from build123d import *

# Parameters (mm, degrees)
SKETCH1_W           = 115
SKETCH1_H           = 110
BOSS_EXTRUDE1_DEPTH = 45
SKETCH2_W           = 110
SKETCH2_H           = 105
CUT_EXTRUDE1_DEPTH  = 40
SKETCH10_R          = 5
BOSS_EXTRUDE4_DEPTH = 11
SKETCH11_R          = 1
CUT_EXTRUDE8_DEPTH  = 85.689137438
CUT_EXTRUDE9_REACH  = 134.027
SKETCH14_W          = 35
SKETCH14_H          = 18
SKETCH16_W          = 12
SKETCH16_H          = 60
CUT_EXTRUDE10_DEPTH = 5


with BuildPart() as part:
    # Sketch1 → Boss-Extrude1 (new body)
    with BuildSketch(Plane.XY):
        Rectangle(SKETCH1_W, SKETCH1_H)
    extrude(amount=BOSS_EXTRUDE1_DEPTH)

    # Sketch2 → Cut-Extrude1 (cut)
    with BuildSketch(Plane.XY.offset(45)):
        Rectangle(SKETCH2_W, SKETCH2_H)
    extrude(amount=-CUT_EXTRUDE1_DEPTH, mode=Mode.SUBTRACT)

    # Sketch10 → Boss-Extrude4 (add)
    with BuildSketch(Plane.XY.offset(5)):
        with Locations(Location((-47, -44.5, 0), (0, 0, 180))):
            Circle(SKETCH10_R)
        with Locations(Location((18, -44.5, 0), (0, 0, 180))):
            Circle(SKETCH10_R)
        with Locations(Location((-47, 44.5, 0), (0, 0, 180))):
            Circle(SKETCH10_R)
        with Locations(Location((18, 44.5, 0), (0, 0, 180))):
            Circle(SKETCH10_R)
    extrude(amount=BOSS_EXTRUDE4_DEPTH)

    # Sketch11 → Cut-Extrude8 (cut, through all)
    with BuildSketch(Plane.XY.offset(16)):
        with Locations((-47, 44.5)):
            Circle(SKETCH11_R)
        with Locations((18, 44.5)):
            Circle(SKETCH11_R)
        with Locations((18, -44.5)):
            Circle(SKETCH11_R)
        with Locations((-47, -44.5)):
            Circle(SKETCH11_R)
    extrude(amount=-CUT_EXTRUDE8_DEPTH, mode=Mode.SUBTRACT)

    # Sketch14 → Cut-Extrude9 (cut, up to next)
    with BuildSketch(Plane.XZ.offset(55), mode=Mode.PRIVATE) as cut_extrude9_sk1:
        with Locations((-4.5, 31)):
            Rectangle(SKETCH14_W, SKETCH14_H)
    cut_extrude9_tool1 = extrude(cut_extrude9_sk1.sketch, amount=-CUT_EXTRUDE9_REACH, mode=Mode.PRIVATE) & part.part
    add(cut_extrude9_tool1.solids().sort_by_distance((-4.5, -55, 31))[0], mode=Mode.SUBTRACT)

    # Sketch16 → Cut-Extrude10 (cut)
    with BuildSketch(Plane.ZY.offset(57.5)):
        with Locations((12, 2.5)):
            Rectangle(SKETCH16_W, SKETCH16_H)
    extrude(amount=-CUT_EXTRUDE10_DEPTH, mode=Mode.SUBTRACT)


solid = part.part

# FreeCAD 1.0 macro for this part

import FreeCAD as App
import Part
import Sketcher

doc = App.newDocument("Part")
params = doc.addObject("Spreadsheet::Sheet", "Params")
for row, (alias, value) in enumerate([
    ("sketch1_width", "115 mm"),
    ("sketch1_height", "110 mm"),
    ("pad1_length", "45 mm"),
    ("sketch2_width", "110 mm"),
    ("sketch2_height", "105 mm"),
    ("pocket1_length", "40 mm"),
    ("sketch3_diameter", "10 mm"),
    ("pad2_length", "11 mm"),
    ("sketch4_diameter", "2 mm"),
    ("sketch5_width", "35 mm"),
    ("sketch5_height", "18 mm"),
    ("sketch6_width", "60 mm"),
    ("sketch6_height", "12 mm"),
    ("pocket4_length", "5 mm"),
], start=1):
    params.set(f"A{row}", alias)
    params.set(f"B{row}", "=" + value)
    params.setAlias(f"B{row}", alias)

body = doc.addObject("PartDesign::Body", "Body")

sketch1 = body.newObject("Sketcher::SketchObject", "Sketch")
sketch1.AttachmentSupport = (doc.getObject("XY_Plane"), [""])
sketch1.MapMode = "FlatFace"
sketch1.addGeometry([
    Part.LineSegment(App.Vector(-57.5, 55, 0), App.Vector(-57.5, -55, 0)),
    Part.LineSegment(App.Vector(-57.5, -55, 0), App.Vector(57.5, -55, 0)),
    Part.LineSegment(App.Vector(57.5, -55, 0), App.Vector(57.5, 55, 0)),
    Part.LineSegment(App.Vector(57.5, 55, 0), App.Vector(-57.5, 55, 0)),
], False)
sketch1.addConstraint([
    Sketcher.Constraint("Coincident", 0, 2, 1, 1),
    Sketcher.Constraint("Coincident", 1, 2, 2, 1),
    Sketcher.Constraint("Coincident", 2, 2, 3, 1),
    Sketcher.Constraint("Coincident", 3, 2, 0, 1),
    Sketcher.Constraint("Vertical", 0),
    Sketcher.Constraint("Horizontal", 1),
    Sketcher.Constraint("Vertical", 2),
    Sketcher.Constraint("Horizontal", 3),
    Sketcher.Constraint("Symmetric", 0, 2, 2, 2, -1, 1),
    Sketcher.Constraint("DistanceX", 1, 1, 1, 2, 115.0),
    Sketcher.Constraint("DistanceY", 0, 2, 0, 1, 110.0),
])
sketch1.setExpression("Constraints[9]", "Params.sketch1_width")
sketch1.setExpression("Constraints[10]", "Params.sketch1_height")
pad1 = body.newObject("PartDesign::Pad", "Pad")
pad1.Profile = sketch1
pad1.setExpression("Length", "Params.pad1_length")

sketch2 = body.newObject("Sketcher::SketchObject", "Sketch001")
sketch2.AttachmentSupport = (doc.getObject("XY_Plane"), [""])
sketch2.MapMode = "FlatFace"
sketch2.AttachmentOffset = App.Placement(App.Vector(0, 0, 45), App.Rotation())
sketch2.addGeometry([
    Part.LineSegment(App.Vector(-55, 52.5, 0), App.Vector(-55, -52.5, 0)),
    Part.LineSegment(App.Vector(-55, -52.5, 0), App.Vector(55, -52.5, 0)),
    Part.LineSegment(App.Vector(55, -52.5, 0), App.Vector(55, 52.5, 0)),
    Part.LineSegment(App.Vector(55, 52.5, 0), App.Vector(-55, 52.5, 0)),
], False)
sketch2.addConstraint([
    Sketcher.Constraint("Coincident", 0, 2, 1, 1),
    Sketcher.Constraint("Coincident", 1, 2, 2, 1),
    Sketcher.Constraint("Coincident", 2, 2, 3, 1),
    Sketcher.Constraint("Coincident", 3, 2, 0, 1),
    Sketcher.Constraint("Vertical", 0),
    Sketcher.Constraint("Horizontal", 1),
    Sketcher.Constraint("Vertical", 2),
    Sketcher.Constraint("Horizontal", 3),
    Sketcher.Constraint("Symmetric", 0, 2, 2, 2, -1, 1),
    Sketcher.Constraint("DistanceX", 1, 1, 1, 2, 110.0),
    Sketcher.Constraint("DistanceY", 0, 2, 0, 1, 105.0),
])
sketch2.setExpression("Constraints[9]", "Params.sketch2_width")
sketch2.setExpression("Constraints[10]", "Params.sketch2_height")
pocket1 = body.newObject("PartDesign::Pocket", "Pocket")
pocket1.Profile = sketch2
pocket1.setExpression("Length", "Params.pocket1_length")

sketch3 = body.newObject("Sketcher::SketchObject", "Sketch002")
sketch3.AttachmentSupport = (doc.getObject("XY_Plane"), [""])
sketch3.MapMode = "FlatFace"
sketch3.AttachmentOffset = App.Placement(App.Vector(0, 0, 5), App.Rotation())
sketch3.addGeometry([
    Part.Circle(App.Vector(-47, -44.5, 0), App.Vector(0, 0, 1), 5),
    Part.Circle(App.Vector(18, -44.5, 0), App.Vector(0, 0, 1), 5),
    Part.Circle(App.Vector(-47, 44.5, 0), App.Vector(0, 0, 1), 5),
    Part.Circle(App.Vector(18, 44.5, 0), App.Vector(0, 0, 1), 5),
], False)
sketch3.addConstraint([
    Sketcher.Constraint("Equal", 0, 1),
    Sketcher.Constraint("Equal", 1, 2),
    Sketcher.Constraint("Equal", 2, 3),
    Sketcher.Constraint("Symmetric", 0, 3, 2, 3, -1),
    Sketcher.Constraint("Symmetric", 1, 3, 3, 3, -1),
    Sketcher.Constraint("Horizontal", 0, 3, 1, 3),
    Sketcher.Constraint("Diameter", 0, 10.0),
    Sketcher.Constraint("DistanceX", 0, 3, -1, 1, 47.0),
    Sketcher.Constraint("DistanceX", -1, 1, 1, 3, 18.0),
    Sketcher.Constraint("DistanceY", 0, 3, 2, 3, 89.0),
])
sketch3.setExpression("Constraints[6]", "Params.sketch3_diameter")
pad2 = body.newObject("PartDesign::Pad", "Pad001")
pad2.Profile = sketch3
pad2.setExpression("Length", "Params.pad2_length")

sketch4 = body.newObject("Sketcher::SketchObject", "Sketch003")
sketch4.AttachmentSupport = (doc.getObject("XY_Plane"), [""])
sketch4.MapMode = "FlatFace"
sketch4.AttachmentOffset = App.Placement(App.Vector(0, 0, 16), App.Rotation())
sketch4.addGeometry([
    Part.Circle(App.Vector(-47, 44.5, 0), App.Vector(0, 0, 1), 1),
    Part.Circle(App.Vector(18, 44.5, 0), App.Vector(0, 0, 1), 1),
    Part.Circle(App.Vector(18, -44.5, 0), App.Vector(0, 0, 1), 1),
    Part.Circle(App.Vector(-47, -44.5, 0), App.Vector(0, 0, 1), 1),
], False)
sketch4.addConstraint([
    Sketcher.Constraint("Equal", 0, 1),
    Sketcher.Constraint("Equal", 1, 2),
    Sketcher.Constraint("Equal", 2, 3),
    Sketcher.Constraint("Symmetric", 1, 3, 2, 3, -1),
    Sketcher.Constraint("Symmetric", 0, 3, 3, 3, -1),
    Sketcher.Constraint("Horizontal", 0, 3, 1, 3),
    Sketcher.Constraint("Diameter", 0, 2.0),
    Sketcher.Constraint("DistanceX", 0, 3, -1, 1, 47.0),
    Sketcher.Constraint("DistanceX", -1, 1, 1, 3, 18.0),
    Sketcher.Constraint("DistanceY", 2, 3, 1, 3, 89.0),
])
sketch4.setExpression("Constraints[6]", "Params.sketch4_diameter")
pocket2 = body.newObject("PartDesign::Pocket", "Pocket001")
pocket2.Profile = sketch4
pocket2.Type = "ThroughAll"

sketch5 = body.newObject("Sketcher::SketchObject", "Sketch004")
sketch5.AttachmentSupport = (doc.getObject("XZ_Plane"), [""])
sketch5.MapMode = "FlatFace"
sketch5.AttachmentOffset = App.Placement(App.Vector(0, 0, 55), App.Rotation())
sketch5.addGeometry([
    Part.LineSegment(App.Vector(-22, 40, 0), App.Vector(-22, 22, 0)),
    Part.LineSegment(App.Vector(-22, 22, 0), App.Vector(13, 22, 0)),
    Part.LineSegment(App.Vector(13, 22, 0), App.Vector(13, 40, 0)),
    Part.LineSegment(App.Vector(13, 40, 0), App.Vector(-22, 40, 0)),
], False)
sketch5.addConstraint([
    Sketcher.Constraint("Coincident", 0, 2, 1, 1),
    Sketcher.Constraint("Coincident", 1, 2, 2, 1),
    Sketcher.Constraint("Coincident", 2, 2, 3, 1),
    Sketcher.Constraint("Coincident", 3, 2, 0, 1),
    Sketcher.Constraint("Vertical", 0),
    Sketcher.Constraint("Horizontal", 1),
    Sketcher.Constraint("Vertical", 2),
    Sketcher.Constraint("Horizontal", 3),
    Sketcher.Constraint("DistanceX", 1, 1, 1, 2, 35.0),
    Sketcher.Constraint("DistanceY", 0, 2, 0, 1, 18.0),
    Sketcher.Constraint("DistanceX", 0, 2, -1, 1, 22.0),
    Sketcher.Constraint("DistanceY", -1, 1, 0, 2, 22.0),
])
sketch5.setExpression("Constraints[8]", "Params.sketch5_width")
sketch5.setExpression("Constraints[9]", "Params.sketch5_height")
pocket3 = body.newObject("PartDesign::Pocket", "Pocket002")
pocket3.Profile = sketch5
pocket3.Type = "UpToFirst"

sketch6 = body.newObject("Sketcher::SketchObject", "Sketch005")
sketch6.AttachmentSupport = (doc.getObject("YZ_Plane"), [""])
sketch6.MapMode = "FlatFace"
sketch6.AttachmentOffset = App.Placement(App.Vector(0, 0, -57.5), App.Rotation())
sketch6.addGeometry([
    Part.LineSegment(App.Vector(32.5, 6, 0), App.Vector(-27.5, 6, 0)),
    Part.LineSegment(App.Vector(-27.5, 6, 0), App.Vector(-27.5, 18, 0)),
    Part.LineSegment(App.Vector(-27.5, 18, 0), App.Vector(32.5, 18, 0)),
    Part.LineSegment(App.Vector(32.5, 18, 0), App.Vector(32.5, 6, 0)),
], False)
sketch6.addConstraint([
    Sketcher.Constraint("Coincident", 0, 2, 1, 1),
    Sketcher.Constraint("Coincident", 1, 2, 2, 1),
    Sketcher.Constraint("Coincident", 2, 2, 3, 1),
    Sketcher.Constraint("Coincident", 3, 2, 0, 1),
    Sketcher.Constraint("Horizontal", 0),
    Sketcher.Constraint("Vertical", 1),
    Sketcher.Constraint("Horizontal", 2),
    Sketcher.Constraint("Vertical", 3),
    Sketcher.Constraint("DistanceX", 0, 2, 0, 1, 60.0),
    Sketcher.Constraint("DistanceY", 1, 1, 1, 2, 12.0),
    Sketcher.Constraint("DistanceY", -1, 1, 0, 2, 6.0),
    Sketcher.Constraint("DistanceX", 0, 2, -1, 1, 27.5),
])
sketch6.setExpression("Constraints[8]", "Params.sketch6_width")
sketch6.setExpression("Constraints[9]", "Params.sketch6_height")
pocket4 = body.newObject("PartDesign::Pocket", "Pocket003")
pocket4.Profile = sketch6
pocket4.setExpression("Length", "Params.pocket4_length")
pocket4.Reversed = True

doc.recompute()
